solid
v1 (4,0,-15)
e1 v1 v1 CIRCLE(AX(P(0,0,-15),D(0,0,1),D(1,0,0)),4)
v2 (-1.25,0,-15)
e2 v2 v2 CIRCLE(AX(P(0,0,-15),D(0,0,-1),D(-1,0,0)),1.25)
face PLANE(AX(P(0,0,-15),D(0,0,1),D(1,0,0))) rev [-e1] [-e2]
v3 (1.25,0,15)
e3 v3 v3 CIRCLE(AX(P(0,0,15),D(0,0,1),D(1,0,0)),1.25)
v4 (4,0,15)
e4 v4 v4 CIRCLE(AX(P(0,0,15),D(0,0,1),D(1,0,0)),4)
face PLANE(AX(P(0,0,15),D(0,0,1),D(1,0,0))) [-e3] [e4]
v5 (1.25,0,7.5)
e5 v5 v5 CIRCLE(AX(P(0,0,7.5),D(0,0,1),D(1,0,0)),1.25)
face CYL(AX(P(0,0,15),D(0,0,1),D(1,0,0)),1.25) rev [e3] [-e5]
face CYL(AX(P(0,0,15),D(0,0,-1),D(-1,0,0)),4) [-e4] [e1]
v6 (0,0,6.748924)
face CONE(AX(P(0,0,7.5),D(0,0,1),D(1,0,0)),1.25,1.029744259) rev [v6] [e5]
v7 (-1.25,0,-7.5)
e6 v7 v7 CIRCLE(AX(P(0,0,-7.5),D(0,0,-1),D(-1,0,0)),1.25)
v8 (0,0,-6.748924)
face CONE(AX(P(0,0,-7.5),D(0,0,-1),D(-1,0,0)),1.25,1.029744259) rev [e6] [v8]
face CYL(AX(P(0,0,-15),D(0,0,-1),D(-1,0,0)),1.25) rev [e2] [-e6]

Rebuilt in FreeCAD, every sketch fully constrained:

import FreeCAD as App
import Part
import Sketcher

V = App.Vector
Q = App.Units.Quantity


def add_polygon(sketch, points):
    """Adds a closed chain of lines whose ends are joined by coincident constraints."""
    first, n = sketch.GeometryCount, len(points)
    for a, b in zip(points, points[1:] + points[:1]):
        sketch.addGeometry(Part.LineSegment(App.Vector(*a, 0), App.Vector(*b, 0)), False)
    for i in range(n):
        sketch.addConstraint(Sketcher.Constraint("Coincident", first + i, 2, first + (i + 1) % n, 1))

doc = App.newDocument("Part")
body = doc.addObject("PartDesign::Body", "Body")

# Sketch on XY plane
sketch1 = body.newObject("Sketcher::SketchObject", "Sketch")
sketch1.AttachmentSupport = (doc.getObject("XY_Plane"), [""])
sketch1.MapMode = "FlatFace"
sketch1.addGeometry(Part.Circle(V(0, 0, 0), V(0, 0, 1), 4), False)
sketch1.addConstraint(Sketcher.Constraint("Coincident", 0, 3, -1, 1))
sketch1.addConstraint(Sketcher.Constraint("Diameter", 0, 8.0))
pad1 = body.newObject("PartDesign::Pad", "Pad")
pad1.Profile = sketch1
pad1.Length = 30
pad1.Midplane = True

# Sketch on YZ plane
sketch2 = body.newObject("Sketcher::SketchObject", "Sketch001")
sketch2.AttachmentSupport = (doc.getObject("YZ_Plane"), [""])
sketch2.MapMode = "FlatFace"
add_polygon(sketch2, [(0, 6.7), (0, 15), (-1.2, 15), (-1.2, 7.5)])  # lines 0-3
sketch2.addConstraint(Sketcher.Constraint("Vertical", 0))
sketch2.addConstraint(Sketcher.Constraint("Horizontal", 1))
sketch2.addConstraint(Sketcher.Constraint("Vertical", 2))
sketch2.addConstraint(Sketcher.Constraint("PointOnObject", 0, 2, -2))
sketch2.addConstraint(Sketcher.Constraint("Angle", 3, Q("-31 deg")))
sketch2.addConstraint(Sketcher.Constraint("DistanceY", 2, 2, 2, 1, 7.5))
sketch2.addConstraint(Sketcher.Constraint("DistanceY", -1, 1, 0, 2, 15.0))
sketch2.addConstraint(Sketcher.Constraint("DistanceX", 1, 2, 1, 1, 1.25))
groove = body.newObject("PartDesign::Groove", "Groove")
groove.Profile = sketch2
groove.ReferenceAxis = (sketch2, ["V_Axis"])
groove.Angle = 360
doc.recompute()

mirrored = body.newObject("PartDesign::Mirrored", "Mirrored")
mirrored.Originals = [groove]
mirrored.MirrorPlane = (doc.getObject("XY_Plane"), [""])
body.Tip = mirrored

doc.recompute()
